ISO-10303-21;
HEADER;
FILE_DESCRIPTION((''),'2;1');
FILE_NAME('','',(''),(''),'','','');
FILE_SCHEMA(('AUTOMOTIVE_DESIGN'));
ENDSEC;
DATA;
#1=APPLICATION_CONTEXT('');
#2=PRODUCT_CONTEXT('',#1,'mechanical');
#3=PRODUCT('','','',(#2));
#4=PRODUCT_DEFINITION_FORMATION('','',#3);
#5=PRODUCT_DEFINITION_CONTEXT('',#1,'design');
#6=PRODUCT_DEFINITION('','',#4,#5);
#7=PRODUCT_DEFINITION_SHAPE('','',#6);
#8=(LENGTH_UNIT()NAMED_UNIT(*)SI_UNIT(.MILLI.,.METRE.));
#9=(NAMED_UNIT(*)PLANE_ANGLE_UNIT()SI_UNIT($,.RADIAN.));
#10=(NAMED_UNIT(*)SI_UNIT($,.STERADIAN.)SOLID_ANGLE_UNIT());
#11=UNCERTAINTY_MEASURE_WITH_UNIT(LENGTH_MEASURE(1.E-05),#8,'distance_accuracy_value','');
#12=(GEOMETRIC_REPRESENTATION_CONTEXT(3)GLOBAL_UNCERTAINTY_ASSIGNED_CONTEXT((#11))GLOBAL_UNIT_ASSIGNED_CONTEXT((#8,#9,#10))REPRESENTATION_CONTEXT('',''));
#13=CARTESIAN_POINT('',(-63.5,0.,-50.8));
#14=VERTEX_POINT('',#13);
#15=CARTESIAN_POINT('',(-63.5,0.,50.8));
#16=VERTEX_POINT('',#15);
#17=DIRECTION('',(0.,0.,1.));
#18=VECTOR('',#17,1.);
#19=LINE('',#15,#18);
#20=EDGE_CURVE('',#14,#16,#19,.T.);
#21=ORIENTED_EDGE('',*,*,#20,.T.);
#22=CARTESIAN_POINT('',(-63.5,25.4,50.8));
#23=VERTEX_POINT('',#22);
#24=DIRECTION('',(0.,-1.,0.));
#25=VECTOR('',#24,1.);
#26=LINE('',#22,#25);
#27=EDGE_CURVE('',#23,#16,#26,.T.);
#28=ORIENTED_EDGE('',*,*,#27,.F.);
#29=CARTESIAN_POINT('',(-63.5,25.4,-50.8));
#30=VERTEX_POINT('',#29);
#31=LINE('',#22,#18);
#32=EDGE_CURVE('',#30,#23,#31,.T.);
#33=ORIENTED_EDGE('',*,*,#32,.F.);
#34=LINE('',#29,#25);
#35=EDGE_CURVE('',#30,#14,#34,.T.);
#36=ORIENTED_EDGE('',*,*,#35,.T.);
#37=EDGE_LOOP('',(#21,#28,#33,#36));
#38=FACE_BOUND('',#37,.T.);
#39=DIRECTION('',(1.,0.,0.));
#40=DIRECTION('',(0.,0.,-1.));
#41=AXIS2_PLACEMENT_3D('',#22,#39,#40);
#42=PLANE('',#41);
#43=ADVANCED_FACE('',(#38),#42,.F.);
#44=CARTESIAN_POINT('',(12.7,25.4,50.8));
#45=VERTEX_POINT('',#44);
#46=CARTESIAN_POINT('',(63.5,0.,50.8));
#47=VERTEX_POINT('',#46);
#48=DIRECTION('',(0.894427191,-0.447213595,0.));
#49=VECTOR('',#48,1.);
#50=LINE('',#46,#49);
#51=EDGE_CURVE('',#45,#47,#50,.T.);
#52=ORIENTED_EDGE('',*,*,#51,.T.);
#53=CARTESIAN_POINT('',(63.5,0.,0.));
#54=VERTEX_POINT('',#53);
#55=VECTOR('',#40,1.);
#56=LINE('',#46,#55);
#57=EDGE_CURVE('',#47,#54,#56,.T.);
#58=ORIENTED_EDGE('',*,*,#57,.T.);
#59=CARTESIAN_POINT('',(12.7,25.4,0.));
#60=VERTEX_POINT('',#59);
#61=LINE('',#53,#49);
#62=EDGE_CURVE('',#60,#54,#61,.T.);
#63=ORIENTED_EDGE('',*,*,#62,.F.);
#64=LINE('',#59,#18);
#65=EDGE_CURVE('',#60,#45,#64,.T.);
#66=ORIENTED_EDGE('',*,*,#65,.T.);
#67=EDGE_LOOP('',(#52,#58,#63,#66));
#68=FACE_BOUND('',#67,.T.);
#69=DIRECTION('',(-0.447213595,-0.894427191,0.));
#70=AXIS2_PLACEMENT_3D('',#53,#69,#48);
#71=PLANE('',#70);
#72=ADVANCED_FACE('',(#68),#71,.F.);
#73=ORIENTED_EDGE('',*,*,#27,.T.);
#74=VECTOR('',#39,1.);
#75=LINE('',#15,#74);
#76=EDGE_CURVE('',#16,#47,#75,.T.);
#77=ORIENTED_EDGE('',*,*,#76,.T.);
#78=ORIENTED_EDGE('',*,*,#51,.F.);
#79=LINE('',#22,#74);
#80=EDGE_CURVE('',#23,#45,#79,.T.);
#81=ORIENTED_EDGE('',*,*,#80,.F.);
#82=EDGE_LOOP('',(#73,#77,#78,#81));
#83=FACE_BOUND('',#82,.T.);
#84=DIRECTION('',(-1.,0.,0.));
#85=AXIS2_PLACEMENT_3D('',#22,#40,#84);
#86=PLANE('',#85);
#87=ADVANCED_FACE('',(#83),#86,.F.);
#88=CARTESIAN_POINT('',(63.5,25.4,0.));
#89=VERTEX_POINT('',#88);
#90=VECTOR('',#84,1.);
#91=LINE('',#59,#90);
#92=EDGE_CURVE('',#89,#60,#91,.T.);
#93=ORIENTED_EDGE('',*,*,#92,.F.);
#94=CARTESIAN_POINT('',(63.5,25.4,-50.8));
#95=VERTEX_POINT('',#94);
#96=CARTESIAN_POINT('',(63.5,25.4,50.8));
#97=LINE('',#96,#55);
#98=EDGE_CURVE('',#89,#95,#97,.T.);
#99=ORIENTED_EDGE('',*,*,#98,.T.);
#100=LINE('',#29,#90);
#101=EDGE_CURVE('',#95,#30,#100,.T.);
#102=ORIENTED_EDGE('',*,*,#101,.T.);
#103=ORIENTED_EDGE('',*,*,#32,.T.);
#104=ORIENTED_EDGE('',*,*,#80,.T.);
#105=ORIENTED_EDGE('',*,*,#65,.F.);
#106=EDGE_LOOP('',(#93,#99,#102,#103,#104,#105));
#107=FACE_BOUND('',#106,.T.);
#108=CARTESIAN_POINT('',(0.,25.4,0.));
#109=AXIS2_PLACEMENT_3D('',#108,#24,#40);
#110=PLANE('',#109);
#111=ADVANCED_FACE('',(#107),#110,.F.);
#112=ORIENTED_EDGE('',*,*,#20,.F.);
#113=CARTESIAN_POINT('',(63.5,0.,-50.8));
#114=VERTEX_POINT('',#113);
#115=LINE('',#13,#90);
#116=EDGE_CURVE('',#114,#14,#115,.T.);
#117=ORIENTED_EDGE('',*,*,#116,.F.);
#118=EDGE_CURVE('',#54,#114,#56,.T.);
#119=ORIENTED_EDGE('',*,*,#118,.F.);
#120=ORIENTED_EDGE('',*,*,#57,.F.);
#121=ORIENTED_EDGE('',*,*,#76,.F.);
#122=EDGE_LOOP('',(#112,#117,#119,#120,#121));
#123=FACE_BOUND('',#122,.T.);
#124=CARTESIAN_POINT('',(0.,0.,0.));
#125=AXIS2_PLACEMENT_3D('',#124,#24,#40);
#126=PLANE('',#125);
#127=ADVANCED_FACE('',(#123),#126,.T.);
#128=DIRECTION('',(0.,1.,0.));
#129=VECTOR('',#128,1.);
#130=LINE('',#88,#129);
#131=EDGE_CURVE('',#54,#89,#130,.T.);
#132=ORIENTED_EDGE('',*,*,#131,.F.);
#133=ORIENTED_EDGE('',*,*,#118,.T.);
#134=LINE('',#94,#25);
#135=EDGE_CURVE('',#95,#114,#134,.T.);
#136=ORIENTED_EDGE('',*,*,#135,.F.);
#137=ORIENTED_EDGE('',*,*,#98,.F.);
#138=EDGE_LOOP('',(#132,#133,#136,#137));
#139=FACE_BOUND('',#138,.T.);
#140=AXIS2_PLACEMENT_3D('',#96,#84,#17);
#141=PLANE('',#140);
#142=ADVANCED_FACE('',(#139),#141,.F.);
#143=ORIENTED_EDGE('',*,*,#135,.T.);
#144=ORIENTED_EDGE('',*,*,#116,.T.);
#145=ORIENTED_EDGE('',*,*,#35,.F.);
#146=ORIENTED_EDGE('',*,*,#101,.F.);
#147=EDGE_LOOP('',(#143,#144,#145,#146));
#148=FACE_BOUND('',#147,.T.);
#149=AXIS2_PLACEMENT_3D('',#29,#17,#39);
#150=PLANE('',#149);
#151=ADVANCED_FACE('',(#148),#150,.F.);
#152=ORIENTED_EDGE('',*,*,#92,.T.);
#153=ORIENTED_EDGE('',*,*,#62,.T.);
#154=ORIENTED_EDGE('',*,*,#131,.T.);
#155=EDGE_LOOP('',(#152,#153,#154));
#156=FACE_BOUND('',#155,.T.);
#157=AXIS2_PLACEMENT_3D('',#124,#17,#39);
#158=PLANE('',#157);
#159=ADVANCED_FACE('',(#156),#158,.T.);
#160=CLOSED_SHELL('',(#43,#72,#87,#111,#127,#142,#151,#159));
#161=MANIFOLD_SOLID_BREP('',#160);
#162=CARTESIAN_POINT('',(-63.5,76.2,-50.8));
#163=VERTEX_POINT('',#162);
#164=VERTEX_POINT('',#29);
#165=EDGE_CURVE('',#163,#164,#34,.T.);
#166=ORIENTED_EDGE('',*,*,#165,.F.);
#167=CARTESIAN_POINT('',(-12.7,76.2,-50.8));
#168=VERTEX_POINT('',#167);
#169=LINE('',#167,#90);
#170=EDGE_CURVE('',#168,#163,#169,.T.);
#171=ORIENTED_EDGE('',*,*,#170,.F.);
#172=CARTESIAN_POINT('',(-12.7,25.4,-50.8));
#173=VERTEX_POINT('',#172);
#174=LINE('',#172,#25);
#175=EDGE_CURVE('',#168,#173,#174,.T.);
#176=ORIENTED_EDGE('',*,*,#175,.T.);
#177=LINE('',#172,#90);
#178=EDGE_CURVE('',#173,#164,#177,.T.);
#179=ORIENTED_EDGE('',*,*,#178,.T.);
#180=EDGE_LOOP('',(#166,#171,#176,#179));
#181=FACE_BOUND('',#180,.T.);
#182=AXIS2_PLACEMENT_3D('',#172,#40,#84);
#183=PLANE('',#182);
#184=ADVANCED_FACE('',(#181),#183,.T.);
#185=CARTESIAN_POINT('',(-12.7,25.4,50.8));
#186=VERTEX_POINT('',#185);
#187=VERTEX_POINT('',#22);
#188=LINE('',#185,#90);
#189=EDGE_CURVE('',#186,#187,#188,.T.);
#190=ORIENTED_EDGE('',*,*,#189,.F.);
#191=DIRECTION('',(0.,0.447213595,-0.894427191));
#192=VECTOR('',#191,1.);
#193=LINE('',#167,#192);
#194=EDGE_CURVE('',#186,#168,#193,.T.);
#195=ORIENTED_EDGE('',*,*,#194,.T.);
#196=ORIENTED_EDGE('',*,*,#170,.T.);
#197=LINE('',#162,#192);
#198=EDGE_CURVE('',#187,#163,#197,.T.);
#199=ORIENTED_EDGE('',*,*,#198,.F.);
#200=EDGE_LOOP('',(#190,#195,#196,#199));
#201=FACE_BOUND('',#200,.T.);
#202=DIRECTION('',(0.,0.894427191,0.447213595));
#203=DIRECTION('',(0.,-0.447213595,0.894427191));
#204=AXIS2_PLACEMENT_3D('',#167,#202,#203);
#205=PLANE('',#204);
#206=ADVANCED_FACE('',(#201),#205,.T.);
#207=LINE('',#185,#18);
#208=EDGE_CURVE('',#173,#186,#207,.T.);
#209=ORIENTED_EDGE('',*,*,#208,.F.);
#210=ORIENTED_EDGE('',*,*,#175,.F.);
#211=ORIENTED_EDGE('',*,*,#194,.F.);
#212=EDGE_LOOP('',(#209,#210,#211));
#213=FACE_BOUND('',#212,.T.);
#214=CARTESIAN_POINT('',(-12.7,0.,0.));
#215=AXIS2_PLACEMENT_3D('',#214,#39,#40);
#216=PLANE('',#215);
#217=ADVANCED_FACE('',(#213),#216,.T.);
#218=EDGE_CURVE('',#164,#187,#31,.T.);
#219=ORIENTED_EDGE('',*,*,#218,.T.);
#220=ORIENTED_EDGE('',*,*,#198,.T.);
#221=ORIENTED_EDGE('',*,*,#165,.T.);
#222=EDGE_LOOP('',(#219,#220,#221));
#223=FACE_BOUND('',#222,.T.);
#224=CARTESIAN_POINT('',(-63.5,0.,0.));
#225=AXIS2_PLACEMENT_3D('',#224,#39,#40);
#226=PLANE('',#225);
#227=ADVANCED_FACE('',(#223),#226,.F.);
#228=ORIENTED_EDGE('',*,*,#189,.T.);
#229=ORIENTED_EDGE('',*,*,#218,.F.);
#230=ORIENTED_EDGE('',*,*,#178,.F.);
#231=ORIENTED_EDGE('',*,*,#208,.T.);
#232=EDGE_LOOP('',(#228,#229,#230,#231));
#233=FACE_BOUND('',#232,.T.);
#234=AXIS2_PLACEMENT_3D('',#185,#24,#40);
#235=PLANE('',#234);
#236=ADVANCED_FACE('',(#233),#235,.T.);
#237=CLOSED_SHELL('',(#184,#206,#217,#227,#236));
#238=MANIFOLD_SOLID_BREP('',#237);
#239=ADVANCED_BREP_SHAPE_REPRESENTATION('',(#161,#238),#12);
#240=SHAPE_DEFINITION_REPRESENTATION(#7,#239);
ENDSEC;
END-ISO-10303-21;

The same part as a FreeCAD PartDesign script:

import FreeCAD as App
import Part
import Sketcher
from FreeCAD import Vector
Q = App.Units.Quantity


def add_polygon(sketch, points):
    """Adds a closed chain of lines whose ends are joined by coincident constraints."""
    first, n = sketch.GeometryCount, len(points)
    for a, b in zip(points, points[1:] + points[:1]):
        sketch.addGeometry(Part.LineSegment(App.Vector(*a, 0), App.Vector(*b, 0)), False)
    for i in range(n):
        sketch.addConstraint(Sketcher.Constraint("Coincident", first + i, 2, first + (i + 1) % n, 1))

doc = App.newDocument("Part")
body = doc.addObject("PartDesign::Body", "Body")

# Sketch on XZ plane
sketch1 = body.newObject("Sketcher::SketchObject", "Sketch")
sketch1.AttachmentSupport = (doc.getObject("XZ_Plane"), [""])
sketch1.MapMode = "FlatFace"
add_polygon(sketch1, [(-64, -51), (-64, 51), (64, 51), (64, -51)])  # lines 0-3
sketch1.addConstraint(Sketcher.Constraint("Vertical", 0))
sketch1.addConstraint(Sketcher.Constraint("Horizontal", 1))
sketch1.addConstraint(Sketcher.Constraint("Vertical", 2))
sketch1.addConstraint(Sketcher.Constraint("Horizontal", 3))
sketch1.addConstraint(Sketcher.Constraint("Symmetric", 0, 2, 2, 2, -1, 1))
sketch1.addConstraint(Sketcher.Constraint("DistanceX", 1, 1, 1, 2, Q("5 in")))
sketch1.addConstraint(Sketcher.Constraint("DistanceY", 0, 1, 0, 2, Q("4 in")))
pad1 = body.newObject("PartDesign::Pad", "Pad")
pad1.Profile = sketch1
pad1.Length = Q("1 in")
pad1.Reversed = True

# Sketch on XY plane
sketch2 = body.newObject("Sketcher::SketchObject", "Sketch001")
sketch2.AttachmentSupport = (doc.getObject("XY_Plane"), [""])
sketch2.MapMode = "FlatFace"
sketch2.AttachmentOffset = App.Placement(Vector(0, 0, 2 * 25.4), App.Rotation())
add_polygon(sketch2, [(13, 25), (64, 0), (64, 25)])  # lines 0-2
sketch2.addConstraint(Sketcher.Constraint("Vertical", 1))
sketch2.addConstraint(Sketcher.Constraint("Horizontal", 2))
sketch2.addConstraint(Sketcher.Constraint("PointOnObject", 0, 2, -1))
sketch2.addConstraint(Sketcher.Constraint("DistanceX", 2, 2, 2, 1, Q("2 in")))
sketch2.addConstraint(Sketcher.Constraint("DistanceY", 1, 1, 1, 2, Q("1 in")))
sketch2.addConstraint(Sketcher.Constraint("DistanceX", -1, 1, 0, 2, Q("2.5 in")))
pocket1 = body.newObject("PartDesign::Pocket", "Pocket")
pocket1.Profile = sketch2
pocket1.Length = Q("2 in")
body2 = doc.addObject("PartDesign::Body", "Body001")

# Sketch on YZ plane
sketch3 = body2.newObject("Sketcher::SketchObject", "Sketch002")
sketch3.AttachmentSupport = (doc.getObject("YZ_Plane001"), [""])
sketch3.MapMode = "FlatFace"
sketch3.AttachmentOffset = App.Placement(Vector(0, 0, -2.5 * 25.4), App.Rotation())
add_polygon(sketch3, [(76, -51), (25, -51), (25, 51)])  # lines 0-2
sketch3.addConstraint(Sketcher.Constraint("Horizontal", 0))
sketch3.addConstraint(Sketcher.Constraint("Vertical", 1))
sketch3.addConstraint(Sketcher.Constraint("DistanceX", 0, 2, 0, 1, Q("2 in")))
sketch3.addConstraint(Sketcher.Constraint("DistanceY", 1, 1, 1, 2, Q("4 in")))
sketch3.addConstraint(Sketcher.Constraint("DistanceX", -1, 1, 0, 2, Q("1 in")))
sketch3.addConstraint(Sketcher.Constraint("DistanceY", 0, 2, -1, 1, Q("2 in")))
pad2 = body2.newObject("PartDesign::Pad", "Pad001")
pad2.Profile = sketch3
pad2.Length = Q("2 in")

doc.recompute()
